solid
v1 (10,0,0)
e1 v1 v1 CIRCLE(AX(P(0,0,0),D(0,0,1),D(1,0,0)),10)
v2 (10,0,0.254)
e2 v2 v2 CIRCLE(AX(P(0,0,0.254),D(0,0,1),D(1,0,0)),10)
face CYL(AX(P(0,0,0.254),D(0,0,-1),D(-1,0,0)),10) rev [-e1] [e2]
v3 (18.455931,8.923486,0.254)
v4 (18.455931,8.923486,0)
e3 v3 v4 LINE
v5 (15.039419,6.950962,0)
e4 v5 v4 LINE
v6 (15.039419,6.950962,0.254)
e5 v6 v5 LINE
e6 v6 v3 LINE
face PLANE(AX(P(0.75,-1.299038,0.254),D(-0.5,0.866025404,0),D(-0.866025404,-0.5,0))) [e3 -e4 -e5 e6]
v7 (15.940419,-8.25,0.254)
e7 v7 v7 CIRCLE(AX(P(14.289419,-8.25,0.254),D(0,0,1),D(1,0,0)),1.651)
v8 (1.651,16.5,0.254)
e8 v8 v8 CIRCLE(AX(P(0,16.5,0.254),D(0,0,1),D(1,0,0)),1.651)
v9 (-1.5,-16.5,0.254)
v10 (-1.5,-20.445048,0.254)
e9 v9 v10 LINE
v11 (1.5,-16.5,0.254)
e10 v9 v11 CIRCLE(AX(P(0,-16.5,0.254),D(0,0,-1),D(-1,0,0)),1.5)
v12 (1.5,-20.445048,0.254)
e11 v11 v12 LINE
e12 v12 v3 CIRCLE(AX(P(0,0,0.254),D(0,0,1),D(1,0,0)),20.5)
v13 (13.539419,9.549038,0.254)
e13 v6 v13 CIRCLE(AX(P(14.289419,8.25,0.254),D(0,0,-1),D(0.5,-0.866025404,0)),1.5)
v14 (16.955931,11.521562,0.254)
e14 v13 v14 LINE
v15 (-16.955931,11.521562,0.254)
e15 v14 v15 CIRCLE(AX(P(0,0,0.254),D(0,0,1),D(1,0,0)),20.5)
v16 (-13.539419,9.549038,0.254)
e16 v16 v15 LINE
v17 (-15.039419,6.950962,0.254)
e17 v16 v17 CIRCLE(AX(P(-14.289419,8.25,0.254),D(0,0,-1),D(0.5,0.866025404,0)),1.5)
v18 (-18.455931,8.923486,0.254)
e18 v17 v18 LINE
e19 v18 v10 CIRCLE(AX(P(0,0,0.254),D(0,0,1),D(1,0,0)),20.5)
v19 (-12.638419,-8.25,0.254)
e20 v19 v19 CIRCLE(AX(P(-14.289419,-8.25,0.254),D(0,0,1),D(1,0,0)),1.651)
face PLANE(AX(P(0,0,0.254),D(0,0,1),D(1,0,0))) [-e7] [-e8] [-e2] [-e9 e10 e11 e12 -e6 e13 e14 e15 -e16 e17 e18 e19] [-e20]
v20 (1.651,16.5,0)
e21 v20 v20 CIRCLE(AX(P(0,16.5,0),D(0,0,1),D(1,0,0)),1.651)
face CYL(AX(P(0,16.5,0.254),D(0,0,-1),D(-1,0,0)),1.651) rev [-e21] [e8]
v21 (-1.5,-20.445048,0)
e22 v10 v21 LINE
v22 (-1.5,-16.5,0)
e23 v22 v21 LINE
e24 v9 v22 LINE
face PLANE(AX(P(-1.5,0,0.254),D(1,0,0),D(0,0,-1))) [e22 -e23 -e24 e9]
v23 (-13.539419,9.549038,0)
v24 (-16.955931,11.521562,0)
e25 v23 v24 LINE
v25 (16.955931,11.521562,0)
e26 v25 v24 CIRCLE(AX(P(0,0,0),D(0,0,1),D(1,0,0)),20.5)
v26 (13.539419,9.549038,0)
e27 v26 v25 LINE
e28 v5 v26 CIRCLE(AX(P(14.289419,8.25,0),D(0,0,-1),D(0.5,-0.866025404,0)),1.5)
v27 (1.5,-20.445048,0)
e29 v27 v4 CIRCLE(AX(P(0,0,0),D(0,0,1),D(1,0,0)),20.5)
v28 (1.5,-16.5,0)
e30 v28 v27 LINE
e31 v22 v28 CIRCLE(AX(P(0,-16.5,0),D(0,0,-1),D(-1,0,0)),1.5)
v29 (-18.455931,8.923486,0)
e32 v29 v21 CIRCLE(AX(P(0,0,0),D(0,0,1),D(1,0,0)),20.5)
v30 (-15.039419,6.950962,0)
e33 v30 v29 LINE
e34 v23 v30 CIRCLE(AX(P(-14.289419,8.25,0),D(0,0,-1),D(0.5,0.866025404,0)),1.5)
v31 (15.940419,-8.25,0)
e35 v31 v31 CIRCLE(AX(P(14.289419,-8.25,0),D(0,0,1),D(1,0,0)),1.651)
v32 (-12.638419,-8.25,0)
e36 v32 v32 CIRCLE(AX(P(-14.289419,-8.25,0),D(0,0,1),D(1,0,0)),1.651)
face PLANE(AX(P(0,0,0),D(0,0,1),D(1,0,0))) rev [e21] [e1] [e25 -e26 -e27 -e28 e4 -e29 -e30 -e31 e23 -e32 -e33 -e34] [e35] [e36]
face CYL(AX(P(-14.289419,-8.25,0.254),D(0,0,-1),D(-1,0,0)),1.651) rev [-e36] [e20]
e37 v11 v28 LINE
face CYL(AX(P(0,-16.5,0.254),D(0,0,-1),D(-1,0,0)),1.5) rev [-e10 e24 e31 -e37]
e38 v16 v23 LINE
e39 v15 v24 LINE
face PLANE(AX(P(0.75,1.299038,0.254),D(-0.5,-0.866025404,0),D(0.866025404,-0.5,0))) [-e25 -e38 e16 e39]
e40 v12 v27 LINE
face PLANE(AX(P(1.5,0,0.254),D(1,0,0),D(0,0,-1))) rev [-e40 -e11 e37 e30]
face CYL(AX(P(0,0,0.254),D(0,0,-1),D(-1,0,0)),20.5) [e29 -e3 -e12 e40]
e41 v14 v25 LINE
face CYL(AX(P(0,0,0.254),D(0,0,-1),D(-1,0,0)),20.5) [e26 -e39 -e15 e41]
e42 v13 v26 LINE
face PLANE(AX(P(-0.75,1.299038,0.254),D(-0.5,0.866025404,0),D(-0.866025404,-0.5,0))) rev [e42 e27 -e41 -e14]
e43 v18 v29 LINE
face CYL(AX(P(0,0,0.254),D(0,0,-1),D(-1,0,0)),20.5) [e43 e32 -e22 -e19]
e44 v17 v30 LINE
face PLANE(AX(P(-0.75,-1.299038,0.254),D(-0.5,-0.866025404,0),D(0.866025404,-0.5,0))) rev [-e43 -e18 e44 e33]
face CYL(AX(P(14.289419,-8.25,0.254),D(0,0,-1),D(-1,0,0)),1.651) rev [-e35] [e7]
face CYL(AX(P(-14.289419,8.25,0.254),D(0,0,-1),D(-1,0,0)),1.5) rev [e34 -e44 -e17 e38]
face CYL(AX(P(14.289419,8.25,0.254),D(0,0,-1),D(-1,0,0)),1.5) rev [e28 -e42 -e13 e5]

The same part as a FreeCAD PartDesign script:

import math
import FreeCAD as App
import Part
import Sketcher

V = App.Vector
Q = App.Units.Quantity

doc = App.newDocument("Part")
body = doc.addObject("PartDesign::Body", "Body")

# Sketch on XY plane
sketch1 = body.newObject("Sketcher::SketchObject", "Sketch")
sketch1.AttachmentSupport = (doc.getObject("XY_Plane"), [""])
sketch1.MapMode = "FlatFace"
sketch1.addGeometry([
    Part.Circle(V(0, 0, 0), V(0, 0, 1), 20.5),  # 0
    Part.Circle(V(-14.3, -8.2, 0), V(0, 0, 1), 1.7),  # 1
    Part.Circle(V(14.3, -8.2, 0), V(0, 0, 1), 1.7),  # 2
    Part.Circle(V(0, 0, 0), V(0, 0, 1), 10),  # 3
    Part.Circle(V(0, 16.5, 0), V(0, 0, 1), 1.7),  # 4
], False)
sketch1.addConstraint([
    Sketcher.Constraint("Coincident", 0, 3, -1, 1),
    Sketcher.Constraint("Coincident", 3, 3, -1, 1),
    Sketcher.Constraint("Equal", 1, 2),
    Sketcher.Constraint("Equal", 2, 4),
    Sketcher.Constraint("Symmetric", 1, 3, 2, 3, -2),
    Sketcher.Constraint("PointOnObject", 4, 3, -2),
    Sketcher.Constraint("Diameter", 0, Q("41 mm")),
    Sketcher.Constraint("Diameter", 3, Q("20 mm")),
    Sketcher.Constraint("Diameter", 1, Q("3.302 mm")),
    Sketcher.Constraint("DistanceY", -1, 1, 4, 3, Q("16.5 mm")),
    Sketcher.Constraint("DistanceY", 1, 3, -1, 1, Q("8.25 mm")),
    Sketcher.Constraint("DistanceX", 1, 3, -1, 1, Q("14.289419 mm")),
])
pad1 = body.newObject("PartDesign::Pad", "Pad")
pad1.Profile = sketch1
pad1.Length = 0.254

# Sketch on XY plane
sketch2 = body.newObject("Sketcher::SketchObject", "Sketch001")
sketch2.AttachmentSupport = (doc.getObject("XY_Plane"), [""])
sketch2.MapMode = "FlatFace"
sketch2.addGeometry([
    Part.ArcOfCircle(Part.Circle(V(0, -16.5, 0), V(0, 0, 1), 1.5), math.radians(0), math.radians(180)),
    Part.LineSegment(V(1.5, -16.5, 0), V(1.5, -20.4, 0)),
    Part.ArcOfCircle(Part.Circle(V(0, 0, 0), V(0, 0, 1), 20.5), math.radians(-94.2), math.radians(-85.8)),
    Part.LineSegment(V(-1.5, -20.4, 0), V(-1.5, -16.5, 0)),
], False)
sketch2.addConstraint([
    Sketcher.Constraint("Tangent", 0, 1, 1, 1),
    Sketcher.Constraint("Coincident", 1, 2, 2, 2),
    Sketcher.Constraint("Coincident", 2, 1, 3, 1),
    Sketcher.Constraint("Tangent", 3, 2, 0, 2),
    Sketcher.Constraint("Vertical", 1),
    Sketcher.Constraint("Vertical", 3),
    Sketcher.Constraint("Coincident", 2, 3, -1, 1),
    Sketcher.Constraint("PointOnObject", 0, 3, -2),
    Sketcher.Constraint("Radius", 0, Q("1.5 mm")),
    Sketcher.Constraint("Radius", 2, Q("20.5 mm")),
    Sketcher.Constraint("DistanceY", 0, 3, -1, 1, Q("16.5 mm")),
])
pocket1 = body.newObject("PartDesign::Pocket", "Pocket")
pocket1.Profile = sketch2
pocket1.Type = "ThroughAll"
pocket1.Reversed = True
doc.recompute()

polarpattern = body.newObject("PartDesign::PolarPattern", "PolarPattern")
polarpattern.Originals = [pocket1]
polarpattern.Axis = (doc.getObject("Z_Axis"), [""])
polarpattern.Angle = 360
polarpattern.Occurrences = 3
body.Tip = polarpattern

doc.recompute()
